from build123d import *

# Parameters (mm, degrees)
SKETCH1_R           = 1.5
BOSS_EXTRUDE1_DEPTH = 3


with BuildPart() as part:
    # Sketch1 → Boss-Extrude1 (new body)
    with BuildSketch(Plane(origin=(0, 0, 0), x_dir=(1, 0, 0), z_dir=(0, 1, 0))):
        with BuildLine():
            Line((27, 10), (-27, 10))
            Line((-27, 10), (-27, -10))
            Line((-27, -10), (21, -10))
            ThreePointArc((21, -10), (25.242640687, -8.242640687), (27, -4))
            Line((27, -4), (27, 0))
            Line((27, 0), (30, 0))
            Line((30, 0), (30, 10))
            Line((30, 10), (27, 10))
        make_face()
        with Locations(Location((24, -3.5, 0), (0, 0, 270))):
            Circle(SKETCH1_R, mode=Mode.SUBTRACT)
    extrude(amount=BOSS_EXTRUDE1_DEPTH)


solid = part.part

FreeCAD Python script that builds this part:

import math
import FreeCAD as App
import Part
import Sketcher

doc = App.newDocument("Part")
body = doc.addObject("PartDesign::Body", "Body")

# Sketch on XZ plane
sketch1 = doc.addObject("Sketcher::SketchObject", "Sketch")
body.addObject(sketch1)
sketch1.AttachmentSupport = (doc.XZ_Plane, [""])
sketch1.MapMode = "FlatFace"
sketch1.addGeometry([
    Part.LineSegment(App.Vector(-27, -10, 0), App.Vector(-27, 10, 0)),  # 0
    Part.LineSegment(App.Vector(-27, 10, 0), App.Vector(21, 10, 0)),  # 1
    Part.ArcOfCircle(Part.Circle(App.Vector(21, 4, 0), App.Vector(0, 0, 1), 6), math.radians(0), math.radians(90)),  # 2
    Part.LineSegment(App.Vector(27, 4, 0), App.Vector(27, 0, 0)),  # 3
    Part.LineSegment(App.Vector(27, 0, 0), App.Vector(30, 0, 0)),  # 4
    Part.LineSegment(App.Vector(30, 0, 0), App.Vector(30, -10, 0)),  # 5
    Part.LineSegment(App.Vector(30, -10, 0), App.Vector(-27, -10, 0)),  # 6
    Part.Circle(App.Vector(24, 3.5, 0), App.Vector(0, 0, 1), 1.5),  # 7
], False)
sketch1.addConstraint([
    Sketcher.Constraint("Coincident", 0, 2, 1, 1),
    Sketcher.Constraint("Tangent", 1, 2, 2, 2),
    Sketcher.Constraint("Tangent", 2, 1, 3, 1),
    Sketcher.Constraint("Coincident", 3, 2, 4, 1),
    Sketcher.Constraint("Coincident", 4, 2, 5, 1),
    Sketcher.Constraint("Coincident", 5, 2, 6, 1),
    Sketcher.Constraint("Coincident", 6, 2, 0, 1),
    Sketcher.Constraint("Vertical", 0),
    Sketcher.Constraint("Horizontal", 1),
    Sketcher.Constraint("Vertical", 3),
    Sketcher.Constraint("Horizontal", 4),
    Sketcher.Constraint("Vertical", 5),
    Sketcher.Constraint("Horizontal", 6),
    Sketcher.Constraint("PointOnObject", 3, 2, -1),
    Sketcher.Constraint("Diameter", 7, 3.0),
    Sketcher.Constraint("Radius", 2, 6.0),
    Sketcher.Constraint("DistanceX", 1, 1, 1, 2, 48.0),
    Sketcher.Constraint("DistanceX", 4, 1, 4, 2, 3.0),
    Sketcher.Constraint("DistanceY", 0, 1, 0, 2, 20.0),
    Sketcher.Constraint("DistanceY", 3, 2, 3, 1, 4.0),
    Sketcher.Constraint("DistanceX", -1, 1, 2, 3, 21.0),
    Sketcher.Constraint("DistanceX", -1, 1, 7, 3, 24.0),
    Sketcher.Constraint("DistanceY", -1, 1, 7, 3, 3.5),
])
pad1 = doc.addObject("PartDesign::Pad", "Pad")
body.addObject(pad1)
pad1.Profile = sketch1
pad1.Length = 3
pad1.Reversed = True

doc.recompute()
